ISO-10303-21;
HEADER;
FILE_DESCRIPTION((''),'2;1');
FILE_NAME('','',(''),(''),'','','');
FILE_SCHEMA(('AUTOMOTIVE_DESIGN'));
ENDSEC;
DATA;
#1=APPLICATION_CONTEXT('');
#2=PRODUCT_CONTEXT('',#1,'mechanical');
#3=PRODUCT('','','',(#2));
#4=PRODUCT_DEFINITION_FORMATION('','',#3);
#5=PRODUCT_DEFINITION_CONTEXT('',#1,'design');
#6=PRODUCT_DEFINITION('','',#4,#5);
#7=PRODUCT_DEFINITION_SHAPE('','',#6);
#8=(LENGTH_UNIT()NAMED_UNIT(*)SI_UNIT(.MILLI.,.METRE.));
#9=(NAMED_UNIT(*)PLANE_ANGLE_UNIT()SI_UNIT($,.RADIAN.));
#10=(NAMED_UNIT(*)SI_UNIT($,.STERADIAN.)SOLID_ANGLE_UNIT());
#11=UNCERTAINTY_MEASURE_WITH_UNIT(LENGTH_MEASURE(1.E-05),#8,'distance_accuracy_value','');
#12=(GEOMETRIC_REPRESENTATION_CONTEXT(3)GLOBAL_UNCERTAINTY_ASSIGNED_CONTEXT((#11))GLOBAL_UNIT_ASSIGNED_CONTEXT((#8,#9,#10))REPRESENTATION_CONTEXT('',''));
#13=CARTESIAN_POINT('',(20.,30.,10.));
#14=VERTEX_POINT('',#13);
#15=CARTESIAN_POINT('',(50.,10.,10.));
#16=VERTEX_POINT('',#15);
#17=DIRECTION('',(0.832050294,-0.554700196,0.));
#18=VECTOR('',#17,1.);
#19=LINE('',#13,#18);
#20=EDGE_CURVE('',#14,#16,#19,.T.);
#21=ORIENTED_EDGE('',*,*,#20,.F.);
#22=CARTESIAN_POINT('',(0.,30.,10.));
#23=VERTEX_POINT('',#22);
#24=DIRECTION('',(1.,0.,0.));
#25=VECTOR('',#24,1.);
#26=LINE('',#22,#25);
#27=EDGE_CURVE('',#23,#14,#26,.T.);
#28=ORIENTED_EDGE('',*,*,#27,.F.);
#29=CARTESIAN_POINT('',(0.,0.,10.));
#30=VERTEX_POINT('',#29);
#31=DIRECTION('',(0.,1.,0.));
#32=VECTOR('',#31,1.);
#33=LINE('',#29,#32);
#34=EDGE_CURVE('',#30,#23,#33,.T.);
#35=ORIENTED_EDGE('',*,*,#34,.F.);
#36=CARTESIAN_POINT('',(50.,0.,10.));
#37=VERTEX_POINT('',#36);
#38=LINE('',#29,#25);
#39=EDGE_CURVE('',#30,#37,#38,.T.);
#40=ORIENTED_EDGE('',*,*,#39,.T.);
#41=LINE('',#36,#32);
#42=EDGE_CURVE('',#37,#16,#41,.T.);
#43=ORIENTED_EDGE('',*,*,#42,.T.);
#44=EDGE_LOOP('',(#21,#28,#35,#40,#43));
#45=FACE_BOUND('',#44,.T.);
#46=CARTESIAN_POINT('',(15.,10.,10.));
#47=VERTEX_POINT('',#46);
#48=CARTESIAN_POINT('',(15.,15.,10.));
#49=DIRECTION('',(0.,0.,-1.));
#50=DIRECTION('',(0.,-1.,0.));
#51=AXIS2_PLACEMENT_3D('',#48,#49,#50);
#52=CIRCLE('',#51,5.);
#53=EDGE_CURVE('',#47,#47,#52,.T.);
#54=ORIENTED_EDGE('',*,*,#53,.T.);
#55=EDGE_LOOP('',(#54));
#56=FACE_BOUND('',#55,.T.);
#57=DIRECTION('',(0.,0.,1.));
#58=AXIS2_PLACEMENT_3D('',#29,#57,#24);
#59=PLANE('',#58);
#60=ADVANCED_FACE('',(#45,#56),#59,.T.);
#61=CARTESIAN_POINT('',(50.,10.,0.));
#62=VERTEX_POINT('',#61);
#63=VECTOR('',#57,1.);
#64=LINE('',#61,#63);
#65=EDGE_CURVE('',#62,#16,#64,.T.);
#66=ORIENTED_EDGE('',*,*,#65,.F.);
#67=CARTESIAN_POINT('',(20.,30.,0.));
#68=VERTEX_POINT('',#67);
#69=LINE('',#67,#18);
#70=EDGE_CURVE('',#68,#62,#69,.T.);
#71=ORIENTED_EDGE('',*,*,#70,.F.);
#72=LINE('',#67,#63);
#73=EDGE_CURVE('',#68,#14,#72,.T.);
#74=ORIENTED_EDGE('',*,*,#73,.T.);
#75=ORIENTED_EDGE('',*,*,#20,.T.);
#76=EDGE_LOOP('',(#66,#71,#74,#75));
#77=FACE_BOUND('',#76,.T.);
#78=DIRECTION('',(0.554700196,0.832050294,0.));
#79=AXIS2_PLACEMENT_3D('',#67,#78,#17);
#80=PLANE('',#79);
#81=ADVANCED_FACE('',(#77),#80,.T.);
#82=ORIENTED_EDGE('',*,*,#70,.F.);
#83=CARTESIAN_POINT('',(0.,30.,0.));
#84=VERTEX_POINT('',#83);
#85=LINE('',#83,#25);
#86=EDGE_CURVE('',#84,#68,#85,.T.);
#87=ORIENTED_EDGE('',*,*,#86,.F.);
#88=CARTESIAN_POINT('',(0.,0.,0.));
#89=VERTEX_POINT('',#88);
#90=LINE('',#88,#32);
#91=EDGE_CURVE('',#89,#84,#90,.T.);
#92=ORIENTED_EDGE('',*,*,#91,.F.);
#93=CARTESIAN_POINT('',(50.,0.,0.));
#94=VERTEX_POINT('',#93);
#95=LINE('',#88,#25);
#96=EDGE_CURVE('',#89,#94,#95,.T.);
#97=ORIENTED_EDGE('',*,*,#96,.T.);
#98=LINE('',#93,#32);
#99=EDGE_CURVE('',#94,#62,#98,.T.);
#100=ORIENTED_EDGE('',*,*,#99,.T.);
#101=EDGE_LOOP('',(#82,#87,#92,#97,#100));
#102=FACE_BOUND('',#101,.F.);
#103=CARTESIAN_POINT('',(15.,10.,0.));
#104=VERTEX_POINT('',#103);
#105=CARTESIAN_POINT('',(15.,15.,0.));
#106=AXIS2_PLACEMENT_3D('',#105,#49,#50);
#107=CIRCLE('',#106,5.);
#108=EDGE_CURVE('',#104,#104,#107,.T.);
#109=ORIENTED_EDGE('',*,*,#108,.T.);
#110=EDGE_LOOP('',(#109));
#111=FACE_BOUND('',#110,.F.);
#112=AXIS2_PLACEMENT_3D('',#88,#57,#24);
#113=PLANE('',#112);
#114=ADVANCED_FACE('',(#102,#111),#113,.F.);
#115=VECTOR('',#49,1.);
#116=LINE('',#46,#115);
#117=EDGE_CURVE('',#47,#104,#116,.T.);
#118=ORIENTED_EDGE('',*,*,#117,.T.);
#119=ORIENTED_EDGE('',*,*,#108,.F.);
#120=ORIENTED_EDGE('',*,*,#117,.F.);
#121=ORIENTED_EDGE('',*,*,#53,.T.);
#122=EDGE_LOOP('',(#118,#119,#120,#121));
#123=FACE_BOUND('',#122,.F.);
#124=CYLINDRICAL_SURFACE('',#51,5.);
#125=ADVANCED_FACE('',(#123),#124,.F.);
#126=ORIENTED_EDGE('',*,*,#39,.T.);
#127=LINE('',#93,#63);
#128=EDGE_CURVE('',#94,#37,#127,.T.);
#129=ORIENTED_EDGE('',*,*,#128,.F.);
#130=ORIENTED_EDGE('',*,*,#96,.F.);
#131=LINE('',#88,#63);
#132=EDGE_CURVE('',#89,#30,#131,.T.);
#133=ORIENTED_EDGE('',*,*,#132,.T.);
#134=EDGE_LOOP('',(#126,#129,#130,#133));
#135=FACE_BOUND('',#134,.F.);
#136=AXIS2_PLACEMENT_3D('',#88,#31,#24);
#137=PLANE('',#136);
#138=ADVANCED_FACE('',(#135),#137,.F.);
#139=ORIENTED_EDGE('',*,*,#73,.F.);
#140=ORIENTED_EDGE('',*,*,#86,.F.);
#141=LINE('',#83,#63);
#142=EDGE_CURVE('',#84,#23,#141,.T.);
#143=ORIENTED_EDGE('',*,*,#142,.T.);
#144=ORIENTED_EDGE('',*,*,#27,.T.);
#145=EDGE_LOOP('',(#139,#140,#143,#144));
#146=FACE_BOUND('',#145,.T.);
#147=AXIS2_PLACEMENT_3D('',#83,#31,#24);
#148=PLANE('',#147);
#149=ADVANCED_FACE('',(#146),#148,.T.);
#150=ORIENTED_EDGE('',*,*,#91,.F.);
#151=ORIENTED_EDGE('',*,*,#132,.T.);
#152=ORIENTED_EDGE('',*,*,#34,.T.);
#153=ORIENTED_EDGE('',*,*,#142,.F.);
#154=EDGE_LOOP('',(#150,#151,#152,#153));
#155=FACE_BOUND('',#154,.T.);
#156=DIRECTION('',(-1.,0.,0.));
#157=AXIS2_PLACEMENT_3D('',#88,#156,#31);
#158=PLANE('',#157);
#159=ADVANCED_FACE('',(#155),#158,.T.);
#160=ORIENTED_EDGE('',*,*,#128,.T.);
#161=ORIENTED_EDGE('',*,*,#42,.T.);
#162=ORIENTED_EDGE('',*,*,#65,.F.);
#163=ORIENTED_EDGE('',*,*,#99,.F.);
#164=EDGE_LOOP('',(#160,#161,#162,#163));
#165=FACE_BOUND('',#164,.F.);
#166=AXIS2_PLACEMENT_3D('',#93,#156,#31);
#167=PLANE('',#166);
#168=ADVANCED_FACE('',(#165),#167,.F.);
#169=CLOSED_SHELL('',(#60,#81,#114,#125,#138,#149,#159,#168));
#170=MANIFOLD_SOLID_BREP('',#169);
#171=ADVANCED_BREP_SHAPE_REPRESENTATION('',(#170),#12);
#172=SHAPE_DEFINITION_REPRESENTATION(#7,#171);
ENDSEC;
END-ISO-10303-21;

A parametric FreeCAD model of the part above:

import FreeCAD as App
import Part
import Sketcher
from FreeCAD import Vector

doc = App.newDocument("Part")
body = doc.addObject("PartDesign::Body", "Body")

# Sketch on XY plane
sketch1 = body.newObject("Sketcher::SketchObject", "Sketch")
sketch1.AttachmentSupport = (doc.getObject("XY_Plane"), [""])
sketch1.MapMode = "FlatFace"
sketch1.addGeometry(Part.LineSegment(Vector(0, 30, 0), Vector(0, 0, 0)), False)
sketch1.addGeometry(Part.LineSegment(Vector(0, 0, 0), Vector(50, 0, 0)), False)
sketch1.addGeometry(Part.LineSegment(Vector(50, 0, 0), Vector(50, 10, 0)), False)
sketch1.addGeometry(Part.LineSegment(Vector(50, 10, 0), Vector(20, 30, 0)), False)
sketch1.addGeometry(Part.LineSegment(Vector(20, 30, 0), Vector(0, 30, 0)), False)
sketch1.addConstraint(Sketcher.Constraint("Coincident", 0, 2, 1, 1))
sketch1.addConstraint(Sketcher.Constraint("Coincident", 1, 2, 2, 1))
sketch1.addConstraint(Sketcher.Constraint("Coincident", 2, 2, 3, 1))
sketch1.addConstraint(Sketcher.Constraint("Coincident", 3, 2, 4, 1))
sketch1.addConstraint(Sketcher.Constraint("Coincident", 4, 2, 0, 1))
sketch1.addConstraint(Sketcher.Constraint("Vertical", 0))
sketch1.addConstraint(Sketcher.Constraint("Horizontal", 1))
sketch1.addConstraint(Sketcher.Constraint("Vertical", 2))
sketch1.addConstraint(Sketcher.Constraint("Horizontal", 4))
sketch1.addConstraint(Sketcher.Constraint("Coincident", 0, 2, -1, 1))
sketch1.addConstraint(Sketcher.Constraint("DistanceX", 1, 1, 1, 2, 50.0))
sketch1.addConstraint(Sketcher.Constraint("DistanceX", 4, 2, 4, 1, 20.0))
sketch1.addConstraint(Sketcher.Constraint("DistanceY", 0, 2, 0, 1, 30.0))
sketch1.addConstraint(Sketcher.Constraint("DistanceY", 2, 1, 2, 2, 10.0))
pad1 = body.newObject("PartDesign::Pad", "Pad")
pad1.Profile = sketch1
pad1.Length = 10

# Sketch on XY plane
sketch2 = body.newObject("Sketcher::SketchObject", "Sketch001")
sketch2.AttachmentSupport = (doc.getObject("XY_Plane"), [""])
sketch2.MapMode = "FlatFace"
sketch2.AttachmentOffset = App.Placement(Vector(0, 0, 10), App.Rotation())
sketch2.addGeometry(Part.Circle(Vector(15, 15, 0), Vector(0, 0, 1), 5), False)
sketch2.addConstraint(Sketcher.Constraint("Diameter", 0, 10.0))
sketch2.addConstraint(Sketcher.Constraint("DistanceX", -1, 1, 0, 3, 15.0))
sketch2.addConstraint(Sketcher.Constraint("DistanceY", -1, 1, 0, 3, 15.0))
doc.recompute()
hole = body.newObject("PartDesign::Hole", "Hole")
hole.Profile = sketch2
hole.ThreadType = "None"
hole.Diameter = 10
hole.DepthType = "ThroughAll"

doc.recompute()
